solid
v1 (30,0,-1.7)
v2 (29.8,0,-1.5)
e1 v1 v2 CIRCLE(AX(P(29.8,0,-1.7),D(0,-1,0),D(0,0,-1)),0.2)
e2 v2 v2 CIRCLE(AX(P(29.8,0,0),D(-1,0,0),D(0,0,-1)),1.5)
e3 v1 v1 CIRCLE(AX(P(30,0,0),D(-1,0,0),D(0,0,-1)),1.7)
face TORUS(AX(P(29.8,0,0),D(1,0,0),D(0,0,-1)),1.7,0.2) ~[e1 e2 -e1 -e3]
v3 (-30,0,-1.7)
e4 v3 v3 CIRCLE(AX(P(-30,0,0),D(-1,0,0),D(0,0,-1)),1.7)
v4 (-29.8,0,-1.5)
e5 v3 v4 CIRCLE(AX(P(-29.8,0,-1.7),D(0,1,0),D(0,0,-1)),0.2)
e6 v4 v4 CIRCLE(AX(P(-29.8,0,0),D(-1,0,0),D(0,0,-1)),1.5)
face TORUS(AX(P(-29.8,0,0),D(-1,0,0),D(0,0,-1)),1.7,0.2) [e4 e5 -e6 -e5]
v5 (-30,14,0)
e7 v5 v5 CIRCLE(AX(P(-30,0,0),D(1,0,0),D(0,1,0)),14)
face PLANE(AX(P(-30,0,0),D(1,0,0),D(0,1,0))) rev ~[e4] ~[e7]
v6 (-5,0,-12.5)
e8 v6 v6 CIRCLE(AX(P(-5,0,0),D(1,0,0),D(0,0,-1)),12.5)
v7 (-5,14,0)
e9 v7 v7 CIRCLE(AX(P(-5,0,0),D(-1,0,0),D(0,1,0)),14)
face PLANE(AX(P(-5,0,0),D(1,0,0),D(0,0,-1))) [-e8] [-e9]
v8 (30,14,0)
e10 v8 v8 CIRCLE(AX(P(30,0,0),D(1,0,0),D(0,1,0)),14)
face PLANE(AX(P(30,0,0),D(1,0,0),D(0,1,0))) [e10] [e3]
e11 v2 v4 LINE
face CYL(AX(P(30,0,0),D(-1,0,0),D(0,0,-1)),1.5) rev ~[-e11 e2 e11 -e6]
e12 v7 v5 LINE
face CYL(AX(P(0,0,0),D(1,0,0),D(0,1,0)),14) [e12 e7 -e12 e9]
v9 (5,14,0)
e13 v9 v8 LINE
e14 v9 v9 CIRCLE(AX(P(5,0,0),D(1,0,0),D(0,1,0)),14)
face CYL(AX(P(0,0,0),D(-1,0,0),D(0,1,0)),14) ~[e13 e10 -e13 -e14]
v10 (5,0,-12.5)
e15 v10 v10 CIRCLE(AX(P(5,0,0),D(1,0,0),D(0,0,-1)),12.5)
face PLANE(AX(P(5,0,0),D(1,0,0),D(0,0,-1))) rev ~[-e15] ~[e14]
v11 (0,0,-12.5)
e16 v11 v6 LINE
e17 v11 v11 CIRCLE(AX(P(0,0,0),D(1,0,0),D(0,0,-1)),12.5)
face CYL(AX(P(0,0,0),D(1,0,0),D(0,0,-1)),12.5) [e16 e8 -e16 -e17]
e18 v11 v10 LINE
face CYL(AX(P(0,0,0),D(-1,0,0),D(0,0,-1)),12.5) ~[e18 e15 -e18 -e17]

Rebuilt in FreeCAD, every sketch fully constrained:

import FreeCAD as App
import Part
import Sketcher
Q = App.Units.Quantity


def edges_at(feature, points):
    """Names of the edges that pass closest to the given points."""
    edges = feature.Shape.Edges
    near = lambda p: min(range(len(edges)), key=lambda i: edges[i].distToShape(Part.Vertex(*p))[0])
    return sorted({f"Edge{near(p) + 1}" for p in points})

doc = App.newDocument("Part")
body = doc.addObject("PartDesign::Body", "Body")

sketch1 = doc.addObject("Sketcher::SketchObject", "Sketch")
body.addObject(sketch1)
sketch1.AttachmentSupport = (doc.YZ_Plane, [""])
sketch1.MapMode = "FlatFace"
sketch1.addGeometry(Part.Circle(App.Vector(0, 0, 0), App.Vector(0, 0, 1), 14), False)
sketch1.addConstraint(Sketcher.Constraint("Coincident", 0, 3, -1, 1))
sketch1.addConstraint(Sketcher.Constraint("Diameter", 0, Q("28 mm")))
pad1 = doc.addObject("PartDesign::Pad", "Pad")
body.addObject(pad1)
pad1.Profile = sketch1
pad1.Length = 60
pad1.Midplane = True

sketch2 = doc.addObject("Sketcher::SketchObject", "Sketch001")
body.addObject(sketch2)
sketch2.AttachmentSupport = (doc.YZ_Plane, [""])
sketch2.MapMode = "FlatFace"
sketch2.AttachmentOffset = App.Placement(App.Vector(0, 0, 30), App.Rotation())
sketch2.addGeometry(Part.Circle(App.Vector(0, 0, 0), App.Vector(0, 0, 1), 1.5), False)
sketch2.addConstraint(Sketcher.Constraint("Coincident", 0, 3, -1, 1))
sketch2.addConstraint(Sketcher.Constraint("Diameter", 0, Q("3 mm")))
doc.recompute()
hole = doc.addObject("PartDesign::Hole", "Hole")
body.addObject(hole)
hole.Profile = sketch2
hole.ThreadType = "None"
hole.Diameter = 3
hole.DepthType = "Dimension"
hole.Depth = 60
hole.DrillPoint = "Flat"
doc.recompute()

fillet = doc.addObject("PartDesign::Fillet", "Fillet")
body.addObject(fillet)
fillet.Base = (hole, edges_at(hole, [(30, 0, 1.5), (-30, 0, 1.5)]))
fillet.Radius = 0.2

sketch3 = doc.addObject("Sketcher::SketchObject", "Sketch002")
body.addObject(sketch3)
sketch3.AttachmentSupport = (doc.YZ_Plane, [""])
sketch3.MapMode = "FlatFace"
sketch3.addGeometry(Part.Circle(App.Vector(0, 0, 0), App.Vector(0, 0, 1), 14), False)
sketch3.addGeometry(Part.Circle(App.Vector(0, 0, 0), App.Vector(0, 0, 1), 12), False)
sketch3.addConstraint(Sketcher.Constraint("Coincident", 0, 3, -1, 1))
sketch3.addConstraint(Sketcher.Constraint("Coincident", 1, 3, -1, 1))
sketch3.addConstraint(Sketcher.Constraint("Diameter", 1, Q("25 mm")))
sketch3.addConstraint(Sketcher.Constraint("Diameter", 0, Q("28 mm")))
pocket1 = doc.addObject("PartDesign::Pocket", "Pocket")
body.addObject(pocket1)
pocket1.Profile = sketch3
pocket1.Length = 10
pocket1.Midplane = True

doc.recompute()
